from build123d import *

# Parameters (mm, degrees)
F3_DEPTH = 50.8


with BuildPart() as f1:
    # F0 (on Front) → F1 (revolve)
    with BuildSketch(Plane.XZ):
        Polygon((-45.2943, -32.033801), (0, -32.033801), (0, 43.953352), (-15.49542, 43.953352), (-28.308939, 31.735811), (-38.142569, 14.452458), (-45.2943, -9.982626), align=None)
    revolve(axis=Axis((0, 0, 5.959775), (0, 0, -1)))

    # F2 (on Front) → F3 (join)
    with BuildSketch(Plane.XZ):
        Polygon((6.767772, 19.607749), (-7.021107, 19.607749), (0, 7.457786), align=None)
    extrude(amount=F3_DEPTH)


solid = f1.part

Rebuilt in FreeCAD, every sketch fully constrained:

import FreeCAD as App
import Part
import Sketcher
from FreeCAD import Vector
Q = App.Units.Quantity

doc = App.newDocument("Part")
body = doc.addObject("PartDesign::Body", "Body")

sketch1 = body.newObject("Sketcher::SketchObject", "Sketch")
sketch1.AttachmentSupport = (doc.getObject("XZ_Plane"), [""])
sketch1.MapMode = "FlatFace"
sketch1.addGeometry([
    Part.LineSegment(Vector(-45, -32, 0), Vector(0, -32, 0)),
    Part.LineSegment(Vector(0, -32, 0), Vector(0, 44, 0)),
    Part.LineSegment(Vector(0, 44, 0), Vector(-15, 44, 0)),
    Part.LineSegment(Vector(-15, 44, 0), Vector(-28, 32, 0)),
    Part.LineSegment(Vector(-28, 32, 0), Vector(-38, 14, 0)),
    Part.LineSegment(Vector(-38, 14, 0), Vector(-45, -10, 0)),
    Part.LineSegment(Vector(-45, -10, 0), Vector(-45, -32, 0)),
], False)
sketch1.addConstraint([
    Sketcher.Constraint("Coincident", 0, 2, 1, 1),
    Sketcher.Constraint("Coincident", 1, 2, 2, 1),
    Sketcher.Constraint("Coincident", 2, 2, 3, 1),
    Sketcher.Constraint("Coincident", 3, 2, 4, 1),
    Sketcher.Constraint("Coincident", 4, 2, 5, 1),
    Sketcher.Constraint("Coincident", 5, 2, 6, 1),
    Sketcher.Constraint("Coincident", 6, 2, 0, 1),
    Sketcher.Constraint("Horizontal", 0),
    Sketcher.Constraint("Vertical", 1),
    Sketcher.Constraint("Horizontal", 2),
    Sketcher.Constraint("Vertical", 6),
    Sketcher.Constraint("PointOnObject", 0, 2, -2),
    Sketcher.Constraint("DistanceX", 0, 1, 0, 2, 45.2943),
    Sketcher.Constraint("DistanceX", 2, 2, 2, 1, 15.49542),
    Sketcher.Constraint("DistanceY", 0, 2, -1, 1, 32.033801),
    Sketcher.Constraint("Distance", 3, 17.704648),
    Sketcher.Constraint("DistanceY", 1, 1, 1, 2, 75.987153),
    Sketcher.Constraint("DistanceY", 6, 2, 6, 1, 22.051175),
    Sketcher.Constraint("DistanceX", 3, 2, -1, 1, 28.308939),
    Sketcher.Constraint("DistanceX", 4, 2, -1, 1, 38.142569),
    Sketcher.Constraint("DistanceY", 0, 2, 4, 2, 46.486259),
])
revolution = body.newObject("PartDesign::Revolution", "Revolution")
revolution.Profile = sketch1
revolution.ReferenceAxis = (sketch1, ["V_Axis"])
revolution.Angle = 360

sketch2 = body.newObject("Sketcher::SketchObject", "Sketch001")
sketch2.AttachmentSupport = (doc.getObject("XZ_Plane"), [""])
sketch2.MapMode = "FlatFace"
sketch2.addGeometry([
    Part.LineSegment(Vector(7, 20, 0), Vector(-7, 20, 0)),
    Part.LineSegment(Vector(-7, 20, 0), Vector(0, 7, 0)),
    Part.LineSegment(Vector(0, 7, 0), Vector(7, 20, 0)),
], False)
sketch2.addConstraint([
    Sketcher.Constraint("Coincident", 0, 2, 1, 1),
    Sketcher.Constraint("Coincident", 1, 2, 2, 1),
    Sketcher.Constraint("Coincident", 2, 2, 0, 1),
    Sketcher.Constraint("Horizontal", 0),
    Sketcher.Constraint("PointOnObject", 1, 2, -2),
    Sketcher.Constraint("DistanceX", 0, 2, 0, 1, 13.788879),
    Sketcher.Constraint("Distance", 1, 14.032731),
    Sketcher.Constraint("DistanceY", -1, 1, 0, 2, 19.607749),
    Sketcher.Constraint("Distance", 2, 13.907708),
])
pad1 = body.newObject("PartDesign::Pad", "Pad")
pad1.Profile = sketch2
pad1.Length = Q("2 in")

doc.recompute()
